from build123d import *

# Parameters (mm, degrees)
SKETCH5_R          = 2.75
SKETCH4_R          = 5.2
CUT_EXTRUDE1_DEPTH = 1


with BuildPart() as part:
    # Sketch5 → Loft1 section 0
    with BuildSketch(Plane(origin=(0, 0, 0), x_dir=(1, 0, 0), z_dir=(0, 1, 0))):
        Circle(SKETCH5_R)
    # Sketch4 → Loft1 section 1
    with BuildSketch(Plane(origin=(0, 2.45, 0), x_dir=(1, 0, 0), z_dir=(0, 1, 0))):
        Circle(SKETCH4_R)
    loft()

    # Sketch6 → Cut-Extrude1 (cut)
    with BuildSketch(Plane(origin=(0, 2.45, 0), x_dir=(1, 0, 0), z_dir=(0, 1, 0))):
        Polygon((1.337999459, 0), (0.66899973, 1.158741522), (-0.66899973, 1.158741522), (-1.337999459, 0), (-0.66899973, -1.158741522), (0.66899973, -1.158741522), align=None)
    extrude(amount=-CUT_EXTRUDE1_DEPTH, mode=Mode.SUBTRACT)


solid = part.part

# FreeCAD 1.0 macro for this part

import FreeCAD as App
import Part
import Sketcher

V = App.Vector
Q = App.Units.Quantity


def add_polygon(sketch, points):
    """Adds a closed chain of lines whose ends are joined by coincident constraints."""
    first, n = sketch.GeometryCount, len(points)
    for a, b in zip(points, points[1:] + points[:1]):
        sketch.addGeometry(Part.LineSegment(App.Vector(*a, 0), App.Vector(*b, 0)), False)
    for i in range(n):
        sketch.addConstraint(Sketcher.Constraint("Coincident", first + i, 2, first + (i + 1) % n, 1))

doc = App.newDocument("Part")
body = doc.addObject("PartDesign::Body", "Body")

# Sketch on XZ plane
sketch1 = doc.addObject("Sketcher::SketchObject", "Sketch")
body.addObject(sketch1)
sketch1.AttachmentSupport = (doc.XZ_Plane, [""])
sketch1.MapMode = "FlatFace"
sketch1.addGeometry(Part.Circle(V(0, 0, 0), V(0, 0, 1), 2.8), False)
sketch1.addConstraint([
    Sketcher.Constraint("Coincident", 0, 3, -1, 1),
    Sketcher.Constraint("Diameter", 0, 5.5),
])

# Sketch on XZ plane
sketch2 = doc.addObject("Sketcher::SketchObject", "Sketch001")
body.addObject(sketch2)
sketch2.AttachmentSupport = (doc.XZ_Plane, [""])
sketch2.MapMode = "FlatFace"
sketch2.AttachmentOffset = App.Placement(V(0, 0, -2.45), App.Rotation())
sketch2.addGeometry(Part.Circle(V(0, 0, 0), V(0, 0, 1), 5), False)
sketch2.addConstraint([
    Sketcher.Constraint("Coincident", 0, 3, -1, 1),
    Sketcher.Constraint("Diameter", 0, 10.4),
])

additiveloft = doc.addObject("PartDesign::AdditiveLoft", "AdditiveLoft")
body.addObject(additiveloft)
additiveloft.Profile = sketch1
additiveloft.Sections = [sketch2]

# Sketch on XZ plane
sketch3 = doc.addObject("Sketcher::SketchObject", "Sketch002")
body.addObject(sketch3)
sketch3.AttachmentSupport = (doc.XZ_Plane, [""])
sketch3.MapMode = "FlatFace"
sketch3.AttachmentOffset = App.Placement(V(0, 0, -2.45), App.Rotation())
add_polygon(sketch3, [(1.3, 0), (0.7, -1.2), (-0.7, -1.2), (-1.3, 0), (-0.7, 1.2), (0.7, 1.2)])  # lines 0-5
sketch3.addConstraint([
    Sketcher.Constraint("Horizontal", 1),
    Sketcher.Constraint("Horizontal", 4),
    Sketcher.Constraint("Symmetric", 0, 2, 3, 2, -1, 1),
    Sketcher.Constraint("Symmetric", 2, 2, 5, 2, -1, 1),
    Sketcher.Constraint("PointOnObject", 2, 2, -1),
    Sketcher.Constraint("Parallel", 2, 5),
    Sketcher.Constraint("Vertical", 1, 2, 3, 2),
    Sketcher.Constraint("Angle", 0, Q("-120 deg")),
    Sketcher.Constraint("DistanceX", 1, 2, 1, 1, 1.337999),
    Sketcher.Constraint("Distance", 0, 1.337999),
])
pocket1 = doc.addObject("PartDesign::Pocket", "Pocket")
body.addObject(pocket1)
pocket1.Profile = sketch3
pocket1.Length = 1
pocket1.Reversed = True

doc.recompute()
